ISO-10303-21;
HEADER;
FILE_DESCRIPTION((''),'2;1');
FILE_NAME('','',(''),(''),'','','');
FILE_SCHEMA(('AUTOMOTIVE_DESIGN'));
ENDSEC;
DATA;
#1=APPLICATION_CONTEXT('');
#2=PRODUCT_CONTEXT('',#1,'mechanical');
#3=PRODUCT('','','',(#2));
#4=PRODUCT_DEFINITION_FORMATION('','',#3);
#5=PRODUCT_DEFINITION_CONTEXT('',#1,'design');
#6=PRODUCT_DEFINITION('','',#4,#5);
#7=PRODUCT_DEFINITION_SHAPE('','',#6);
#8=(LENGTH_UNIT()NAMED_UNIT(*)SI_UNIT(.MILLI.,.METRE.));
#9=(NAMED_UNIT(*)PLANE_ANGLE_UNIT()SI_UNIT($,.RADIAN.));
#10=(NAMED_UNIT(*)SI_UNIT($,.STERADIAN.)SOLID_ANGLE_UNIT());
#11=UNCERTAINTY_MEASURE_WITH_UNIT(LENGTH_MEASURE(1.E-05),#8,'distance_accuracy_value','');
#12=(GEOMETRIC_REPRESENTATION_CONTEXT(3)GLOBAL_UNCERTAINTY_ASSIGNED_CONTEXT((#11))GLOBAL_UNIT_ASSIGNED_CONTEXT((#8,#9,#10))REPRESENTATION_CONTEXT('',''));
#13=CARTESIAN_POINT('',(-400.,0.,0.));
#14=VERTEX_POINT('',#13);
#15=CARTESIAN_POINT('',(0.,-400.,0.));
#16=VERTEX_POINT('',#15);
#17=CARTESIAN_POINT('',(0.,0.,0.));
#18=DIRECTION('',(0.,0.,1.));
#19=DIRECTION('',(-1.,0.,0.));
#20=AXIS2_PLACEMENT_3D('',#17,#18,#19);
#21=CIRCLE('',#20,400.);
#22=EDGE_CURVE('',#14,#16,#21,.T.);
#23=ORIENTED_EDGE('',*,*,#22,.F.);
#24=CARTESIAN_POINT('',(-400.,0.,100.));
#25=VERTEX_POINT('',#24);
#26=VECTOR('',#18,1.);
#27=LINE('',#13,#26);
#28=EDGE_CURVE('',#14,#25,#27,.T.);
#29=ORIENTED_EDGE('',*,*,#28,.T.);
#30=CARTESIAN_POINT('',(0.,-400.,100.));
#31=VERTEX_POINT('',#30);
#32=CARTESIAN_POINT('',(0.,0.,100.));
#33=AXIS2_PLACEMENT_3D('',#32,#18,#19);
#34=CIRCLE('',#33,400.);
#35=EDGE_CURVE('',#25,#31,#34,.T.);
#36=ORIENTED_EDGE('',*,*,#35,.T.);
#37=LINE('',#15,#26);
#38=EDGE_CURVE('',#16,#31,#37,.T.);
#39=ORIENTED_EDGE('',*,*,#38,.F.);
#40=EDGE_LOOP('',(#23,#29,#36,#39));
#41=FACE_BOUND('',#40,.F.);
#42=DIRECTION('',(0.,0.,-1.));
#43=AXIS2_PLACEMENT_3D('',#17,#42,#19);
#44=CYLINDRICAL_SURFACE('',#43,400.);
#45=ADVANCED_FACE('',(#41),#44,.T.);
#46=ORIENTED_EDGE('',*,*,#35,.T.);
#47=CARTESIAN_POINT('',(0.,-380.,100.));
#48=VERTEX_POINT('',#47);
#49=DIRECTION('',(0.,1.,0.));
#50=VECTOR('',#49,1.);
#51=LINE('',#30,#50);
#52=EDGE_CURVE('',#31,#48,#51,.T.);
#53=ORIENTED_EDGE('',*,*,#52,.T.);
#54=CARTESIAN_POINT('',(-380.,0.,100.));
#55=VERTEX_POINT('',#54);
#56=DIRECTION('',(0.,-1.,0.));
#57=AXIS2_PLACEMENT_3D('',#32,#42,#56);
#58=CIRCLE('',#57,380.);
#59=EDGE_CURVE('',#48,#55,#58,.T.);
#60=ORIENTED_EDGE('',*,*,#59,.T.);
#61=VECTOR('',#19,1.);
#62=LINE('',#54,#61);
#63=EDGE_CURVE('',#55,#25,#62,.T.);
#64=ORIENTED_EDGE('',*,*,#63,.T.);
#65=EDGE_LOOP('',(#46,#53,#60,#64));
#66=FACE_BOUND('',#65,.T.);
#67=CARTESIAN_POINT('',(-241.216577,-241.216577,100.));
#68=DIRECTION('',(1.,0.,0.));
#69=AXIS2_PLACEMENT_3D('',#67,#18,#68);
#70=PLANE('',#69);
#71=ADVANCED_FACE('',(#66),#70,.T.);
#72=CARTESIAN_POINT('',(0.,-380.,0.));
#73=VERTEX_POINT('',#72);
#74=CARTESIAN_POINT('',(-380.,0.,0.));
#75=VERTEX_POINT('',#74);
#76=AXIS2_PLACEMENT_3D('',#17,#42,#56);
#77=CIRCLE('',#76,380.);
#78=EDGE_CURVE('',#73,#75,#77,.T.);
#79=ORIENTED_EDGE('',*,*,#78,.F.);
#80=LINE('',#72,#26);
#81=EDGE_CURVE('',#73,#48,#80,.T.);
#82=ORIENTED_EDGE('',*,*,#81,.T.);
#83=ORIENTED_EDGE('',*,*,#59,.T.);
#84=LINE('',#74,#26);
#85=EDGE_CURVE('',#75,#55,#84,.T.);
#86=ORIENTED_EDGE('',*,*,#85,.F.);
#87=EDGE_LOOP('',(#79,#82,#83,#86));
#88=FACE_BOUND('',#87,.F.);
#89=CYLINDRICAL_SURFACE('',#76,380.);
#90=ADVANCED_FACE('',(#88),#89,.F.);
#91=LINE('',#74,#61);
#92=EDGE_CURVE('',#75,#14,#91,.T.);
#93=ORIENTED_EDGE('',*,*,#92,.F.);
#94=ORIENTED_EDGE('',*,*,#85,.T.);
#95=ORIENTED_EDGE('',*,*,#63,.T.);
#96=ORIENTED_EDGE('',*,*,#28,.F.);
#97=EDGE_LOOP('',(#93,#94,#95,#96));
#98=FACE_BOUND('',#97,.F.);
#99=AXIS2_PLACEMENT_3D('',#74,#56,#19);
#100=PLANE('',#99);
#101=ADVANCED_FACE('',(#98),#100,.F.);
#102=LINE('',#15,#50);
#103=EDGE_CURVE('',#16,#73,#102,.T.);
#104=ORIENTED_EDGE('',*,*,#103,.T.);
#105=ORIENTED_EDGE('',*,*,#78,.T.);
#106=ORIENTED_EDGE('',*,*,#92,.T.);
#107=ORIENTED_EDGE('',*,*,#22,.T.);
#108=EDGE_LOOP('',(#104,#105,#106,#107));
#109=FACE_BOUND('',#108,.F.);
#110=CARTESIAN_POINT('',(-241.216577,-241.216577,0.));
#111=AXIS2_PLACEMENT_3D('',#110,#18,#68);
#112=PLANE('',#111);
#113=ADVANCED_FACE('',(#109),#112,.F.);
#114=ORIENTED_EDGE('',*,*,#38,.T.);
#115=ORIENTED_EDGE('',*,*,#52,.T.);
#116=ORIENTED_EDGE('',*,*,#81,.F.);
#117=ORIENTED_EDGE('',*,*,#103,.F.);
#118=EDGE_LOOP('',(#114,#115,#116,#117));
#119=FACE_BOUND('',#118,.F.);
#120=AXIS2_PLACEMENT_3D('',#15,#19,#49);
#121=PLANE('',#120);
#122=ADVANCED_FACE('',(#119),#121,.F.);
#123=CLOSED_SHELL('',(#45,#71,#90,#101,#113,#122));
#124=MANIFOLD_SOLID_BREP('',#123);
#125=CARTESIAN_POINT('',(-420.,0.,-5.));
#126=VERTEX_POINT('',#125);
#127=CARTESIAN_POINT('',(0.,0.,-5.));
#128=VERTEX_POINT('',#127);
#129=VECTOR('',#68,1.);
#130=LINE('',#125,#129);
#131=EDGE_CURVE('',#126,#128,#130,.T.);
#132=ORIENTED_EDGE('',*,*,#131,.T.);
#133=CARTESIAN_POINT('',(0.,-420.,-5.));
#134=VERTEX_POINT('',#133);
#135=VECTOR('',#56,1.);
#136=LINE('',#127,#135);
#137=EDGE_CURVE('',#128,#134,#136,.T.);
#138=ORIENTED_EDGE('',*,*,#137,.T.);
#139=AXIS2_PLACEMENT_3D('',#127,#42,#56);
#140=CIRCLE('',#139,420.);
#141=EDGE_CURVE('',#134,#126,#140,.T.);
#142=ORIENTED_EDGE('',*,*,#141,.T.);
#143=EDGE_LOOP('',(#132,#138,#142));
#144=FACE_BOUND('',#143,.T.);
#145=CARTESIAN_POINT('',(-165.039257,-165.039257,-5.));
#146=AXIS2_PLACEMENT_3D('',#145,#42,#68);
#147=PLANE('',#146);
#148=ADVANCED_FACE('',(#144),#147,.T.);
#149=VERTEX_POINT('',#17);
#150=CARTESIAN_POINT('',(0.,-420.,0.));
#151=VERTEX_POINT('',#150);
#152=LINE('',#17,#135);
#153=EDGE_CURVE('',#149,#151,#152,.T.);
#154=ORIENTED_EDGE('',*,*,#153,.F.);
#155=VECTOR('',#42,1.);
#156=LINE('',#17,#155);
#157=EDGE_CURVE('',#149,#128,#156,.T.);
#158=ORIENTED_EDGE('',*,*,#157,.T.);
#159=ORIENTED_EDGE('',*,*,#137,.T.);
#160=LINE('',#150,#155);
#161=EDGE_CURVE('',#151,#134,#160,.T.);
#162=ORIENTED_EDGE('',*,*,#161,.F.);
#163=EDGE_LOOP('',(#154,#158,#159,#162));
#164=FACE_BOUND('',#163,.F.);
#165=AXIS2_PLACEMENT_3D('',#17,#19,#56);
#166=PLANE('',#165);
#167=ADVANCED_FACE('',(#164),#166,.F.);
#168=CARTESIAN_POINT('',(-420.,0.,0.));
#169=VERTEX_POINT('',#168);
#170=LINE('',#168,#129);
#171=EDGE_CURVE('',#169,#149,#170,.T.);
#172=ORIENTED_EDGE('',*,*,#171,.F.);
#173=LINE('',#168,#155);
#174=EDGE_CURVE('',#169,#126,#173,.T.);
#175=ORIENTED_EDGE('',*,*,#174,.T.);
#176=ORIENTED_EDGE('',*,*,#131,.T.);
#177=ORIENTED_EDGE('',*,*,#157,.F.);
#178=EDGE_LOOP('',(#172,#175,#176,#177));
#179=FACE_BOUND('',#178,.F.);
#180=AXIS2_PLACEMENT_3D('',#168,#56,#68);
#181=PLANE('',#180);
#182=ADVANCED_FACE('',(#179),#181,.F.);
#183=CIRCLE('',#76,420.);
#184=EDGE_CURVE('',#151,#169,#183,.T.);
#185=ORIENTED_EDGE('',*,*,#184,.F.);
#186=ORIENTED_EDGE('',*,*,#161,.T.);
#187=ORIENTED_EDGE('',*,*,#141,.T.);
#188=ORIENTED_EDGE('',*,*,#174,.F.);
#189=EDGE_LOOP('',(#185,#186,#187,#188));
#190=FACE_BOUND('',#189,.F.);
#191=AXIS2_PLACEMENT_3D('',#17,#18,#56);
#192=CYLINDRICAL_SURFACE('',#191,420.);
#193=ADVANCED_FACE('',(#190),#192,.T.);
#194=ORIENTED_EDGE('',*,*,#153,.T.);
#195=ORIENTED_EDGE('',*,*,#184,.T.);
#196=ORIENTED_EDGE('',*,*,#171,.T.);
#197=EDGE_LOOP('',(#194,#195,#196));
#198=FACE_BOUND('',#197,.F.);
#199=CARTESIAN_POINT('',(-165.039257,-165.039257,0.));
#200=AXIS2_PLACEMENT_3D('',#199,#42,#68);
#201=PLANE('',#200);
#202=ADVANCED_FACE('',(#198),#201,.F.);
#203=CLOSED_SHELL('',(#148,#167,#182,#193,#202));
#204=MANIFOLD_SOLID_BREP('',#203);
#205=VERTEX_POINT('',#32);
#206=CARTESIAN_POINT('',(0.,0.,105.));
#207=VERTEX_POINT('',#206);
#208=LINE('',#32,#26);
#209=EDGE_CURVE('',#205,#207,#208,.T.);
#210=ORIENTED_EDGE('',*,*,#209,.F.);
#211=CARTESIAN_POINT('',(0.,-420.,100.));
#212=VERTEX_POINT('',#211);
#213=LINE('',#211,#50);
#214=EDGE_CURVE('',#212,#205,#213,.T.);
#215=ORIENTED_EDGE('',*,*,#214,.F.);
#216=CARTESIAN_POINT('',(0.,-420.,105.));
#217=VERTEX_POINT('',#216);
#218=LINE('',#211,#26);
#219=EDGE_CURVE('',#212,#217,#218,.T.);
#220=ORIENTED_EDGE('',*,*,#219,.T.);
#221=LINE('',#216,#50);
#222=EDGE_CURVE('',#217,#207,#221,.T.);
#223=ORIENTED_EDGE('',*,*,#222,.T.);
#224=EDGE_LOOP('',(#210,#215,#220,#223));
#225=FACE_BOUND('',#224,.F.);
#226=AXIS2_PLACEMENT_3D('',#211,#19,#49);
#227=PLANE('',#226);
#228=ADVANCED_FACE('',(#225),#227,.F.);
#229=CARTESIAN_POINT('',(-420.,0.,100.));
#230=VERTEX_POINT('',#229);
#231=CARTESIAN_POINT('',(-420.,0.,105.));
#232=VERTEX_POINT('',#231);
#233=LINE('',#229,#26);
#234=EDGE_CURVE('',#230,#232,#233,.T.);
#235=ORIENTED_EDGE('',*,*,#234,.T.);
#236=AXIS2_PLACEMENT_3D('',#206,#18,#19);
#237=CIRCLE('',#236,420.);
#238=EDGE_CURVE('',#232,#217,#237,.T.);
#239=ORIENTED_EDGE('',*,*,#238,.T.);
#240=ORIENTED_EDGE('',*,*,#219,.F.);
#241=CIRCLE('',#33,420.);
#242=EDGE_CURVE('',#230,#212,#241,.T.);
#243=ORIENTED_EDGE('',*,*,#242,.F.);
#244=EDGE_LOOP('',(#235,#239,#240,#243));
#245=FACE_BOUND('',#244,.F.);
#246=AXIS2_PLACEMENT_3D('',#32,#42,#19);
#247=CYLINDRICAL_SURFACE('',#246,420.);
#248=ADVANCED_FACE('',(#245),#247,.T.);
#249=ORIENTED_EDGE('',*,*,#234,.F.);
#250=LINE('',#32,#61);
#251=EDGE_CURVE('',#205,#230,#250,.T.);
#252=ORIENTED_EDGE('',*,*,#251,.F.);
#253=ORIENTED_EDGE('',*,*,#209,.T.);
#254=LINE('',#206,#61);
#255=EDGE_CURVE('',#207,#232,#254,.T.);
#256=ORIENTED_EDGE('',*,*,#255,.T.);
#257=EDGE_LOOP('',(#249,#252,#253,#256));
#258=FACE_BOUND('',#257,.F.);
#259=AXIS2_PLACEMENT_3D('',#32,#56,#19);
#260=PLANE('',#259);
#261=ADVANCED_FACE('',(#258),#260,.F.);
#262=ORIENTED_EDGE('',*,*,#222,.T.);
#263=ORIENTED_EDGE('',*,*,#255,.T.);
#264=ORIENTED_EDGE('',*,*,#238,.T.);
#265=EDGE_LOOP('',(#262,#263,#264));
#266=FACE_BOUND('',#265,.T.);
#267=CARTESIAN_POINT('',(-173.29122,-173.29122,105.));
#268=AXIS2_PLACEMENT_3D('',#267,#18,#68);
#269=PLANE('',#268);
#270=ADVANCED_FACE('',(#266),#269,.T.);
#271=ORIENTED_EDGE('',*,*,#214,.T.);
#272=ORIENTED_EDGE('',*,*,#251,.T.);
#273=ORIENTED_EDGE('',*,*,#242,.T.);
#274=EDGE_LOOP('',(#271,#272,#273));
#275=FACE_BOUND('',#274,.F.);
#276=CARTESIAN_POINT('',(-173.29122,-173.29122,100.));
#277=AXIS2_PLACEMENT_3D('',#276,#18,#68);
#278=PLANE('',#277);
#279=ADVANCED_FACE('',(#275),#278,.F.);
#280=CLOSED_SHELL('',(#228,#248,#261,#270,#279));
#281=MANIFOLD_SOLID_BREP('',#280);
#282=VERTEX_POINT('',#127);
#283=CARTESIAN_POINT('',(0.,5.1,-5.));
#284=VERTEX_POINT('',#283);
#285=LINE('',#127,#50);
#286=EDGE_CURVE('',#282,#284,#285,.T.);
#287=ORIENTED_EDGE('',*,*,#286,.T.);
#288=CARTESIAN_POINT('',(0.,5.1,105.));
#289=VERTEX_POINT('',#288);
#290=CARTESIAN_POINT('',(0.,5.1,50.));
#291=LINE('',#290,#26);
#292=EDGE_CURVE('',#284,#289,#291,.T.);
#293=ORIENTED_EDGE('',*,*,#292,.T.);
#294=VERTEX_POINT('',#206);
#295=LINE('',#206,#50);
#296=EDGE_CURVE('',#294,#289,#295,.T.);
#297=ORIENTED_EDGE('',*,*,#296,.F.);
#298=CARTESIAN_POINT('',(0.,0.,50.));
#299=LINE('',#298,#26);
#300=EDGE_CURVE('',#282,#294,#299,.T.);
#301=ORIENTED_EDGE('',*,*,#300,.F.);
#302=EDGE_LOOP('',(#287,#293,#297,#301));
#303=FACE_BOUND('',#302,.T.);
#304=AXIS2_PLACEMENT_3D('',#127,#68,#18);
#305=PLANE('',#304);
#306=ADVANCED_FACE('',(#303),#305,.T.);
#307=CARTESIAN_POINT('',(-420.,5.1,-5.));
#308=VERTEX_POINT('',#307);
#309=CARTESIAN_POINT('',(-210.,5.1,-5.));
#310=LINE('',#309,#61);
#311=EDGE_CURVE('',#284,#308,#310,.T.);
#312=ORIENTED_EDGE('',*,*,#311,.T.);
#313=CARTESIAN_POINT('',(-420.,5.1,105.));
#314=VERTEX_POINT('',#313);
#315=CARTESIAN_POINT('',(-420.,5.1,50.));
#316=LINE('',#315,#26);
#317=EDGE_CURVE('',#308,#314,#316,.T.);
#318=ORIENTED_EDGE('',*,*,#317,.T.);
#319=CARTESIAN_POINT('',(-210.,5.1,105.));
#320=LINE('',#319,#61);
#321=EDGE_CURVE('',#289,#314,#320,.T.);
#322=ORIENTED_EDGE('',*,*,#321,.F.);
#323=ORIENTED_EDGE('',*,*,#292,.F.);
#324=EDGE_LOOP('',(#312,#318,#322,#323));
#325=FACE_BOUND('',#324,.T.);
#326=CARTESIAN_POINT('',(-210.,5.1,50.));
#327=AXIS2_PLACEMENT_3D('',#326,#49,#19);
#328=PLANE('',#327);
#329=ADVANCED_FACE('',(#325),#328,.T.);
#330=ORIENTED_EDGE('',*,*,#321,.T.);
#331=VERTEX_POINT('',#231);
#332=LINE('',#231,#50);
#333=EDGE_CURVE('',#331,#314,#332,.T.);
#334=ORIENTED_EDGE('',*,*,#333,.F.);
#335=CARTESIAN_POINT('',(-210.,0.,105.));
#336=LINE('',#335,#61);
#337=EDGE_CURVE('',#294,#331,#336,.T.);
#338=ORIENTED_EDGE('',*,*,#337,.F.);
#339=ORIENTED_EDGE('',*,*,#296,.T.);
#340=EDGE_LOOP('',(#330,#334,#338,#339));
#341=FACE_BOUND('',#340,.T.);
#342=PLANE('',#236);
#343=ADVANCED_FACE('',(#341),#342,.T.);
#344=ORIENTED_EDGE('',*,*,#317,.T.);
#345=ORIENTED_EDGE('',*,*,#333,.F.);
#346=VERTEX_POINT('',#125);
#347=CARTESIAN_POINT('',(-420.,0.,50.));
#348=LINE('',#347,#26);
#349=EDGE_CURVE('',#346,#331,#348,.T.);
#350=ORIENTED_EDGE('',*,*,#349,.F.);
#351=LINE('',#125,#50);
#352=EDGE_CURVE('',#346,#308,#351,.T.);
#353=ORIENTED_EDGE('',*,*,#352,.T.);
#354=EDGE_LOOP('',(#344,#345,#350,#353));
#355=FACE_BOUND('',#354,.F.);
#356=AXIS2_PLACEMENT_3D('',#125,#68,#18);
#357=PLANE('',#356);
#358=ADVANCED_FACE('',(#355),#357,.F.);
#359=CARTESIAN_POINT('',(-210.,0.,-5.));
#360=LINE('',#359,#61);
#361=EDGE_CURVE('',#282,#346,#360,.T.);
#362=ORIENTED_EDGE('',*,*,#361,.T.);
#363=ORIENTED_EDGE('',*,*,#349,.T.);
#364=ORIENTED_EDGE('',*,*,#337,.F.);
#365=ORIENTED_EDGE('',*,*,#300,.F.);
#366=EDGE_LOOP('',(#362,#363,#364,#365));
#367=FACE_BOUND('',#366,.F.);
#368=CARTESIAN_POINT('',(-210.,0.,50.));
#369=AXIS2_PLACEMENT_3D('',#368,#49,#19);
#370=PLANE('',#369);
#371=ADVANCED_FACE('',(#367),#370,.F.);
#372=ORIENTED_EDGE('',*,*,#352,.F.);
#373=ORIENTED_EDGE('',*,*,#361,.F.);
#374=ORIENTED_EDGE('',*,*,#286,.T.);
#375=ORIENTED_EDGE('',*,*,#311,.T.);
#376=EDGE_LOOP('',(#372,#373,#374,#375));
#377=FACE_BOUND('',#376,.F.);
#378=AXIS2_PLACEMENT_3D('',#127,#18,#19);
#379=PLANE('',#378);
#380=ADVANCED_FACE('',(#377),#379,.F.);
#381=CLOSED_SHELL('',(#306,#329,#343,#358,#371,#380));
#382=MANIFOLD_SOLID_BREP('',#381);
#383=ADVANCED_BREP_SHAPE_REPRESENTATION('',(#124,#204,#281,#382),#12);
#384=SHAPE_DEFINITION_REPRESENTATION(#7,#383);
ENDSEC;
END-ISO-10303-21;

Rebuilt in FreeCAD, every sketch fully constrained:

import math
import FreeCAD as App
import Part
import Sketcher

V = App.Vector


def add_polygon(sketch, points):
    """Adds a closed chain of lines whose ends are joined by coincident constraints."""
    first, n = sketch.GeometryCount, len(points)
    for a, b in zip(points, points[1:] + points[:1]):
        sketch.addGeometry(Part.LineSegment(App.Vector(*a, 0), App.Vector(*b, 0)), False)
    for i in range(n):
        sketch.addConstraint(Sketcher.Constraint("Coincident", first + i, 2, first + (i + 1) % n, 1))

doc = App.newDocument("Part")
body = doc.addObject("PartDesign::Body", "Body")

# Sketch on XY plane
sketch1 = body.newObject("Sketcher::SketchObject", "Sketch")
sketch1.AttachmentSupport = (doc.getObject("XY_Plane"), [""])
sketch1.MapMode = "FlatFace"
sketch1.addGeometry([
    Part.ArcOfCircle(Part.Circle(V(0, 0, 0), V(0, 0, 1), 380), math.radians(180), math.radians(270)),
    Part.LineSegment(V(-380, 0, 0), V(-400, 0, 0)),
    Part.ArcOfCircle(Part.Circle(V(0, 0, 0), V(0, 0, 1), 400), math.radians(180), math.radians(270)),
    Part.LineSegment(V(0, -400, 0), V(0, -380, 0)),
], False)
sketch1.addConstraint([
    Sketcher.Constraint("Coincident", 0, 1, 1, 1),
    Sketcher.Constraint("Coincident", 1, 2, 2, 1),
    Sketcher.Constraint("Coincident", 2, 2, 3, 1),
    Sketcher.Constraint("Coincident", 3, 2, 0, 2),
    Sketcher.Constraint("Horizontal", 1),
    Sketcher.Constraint("Vertical", 3),
    Sketcher.Constraint("Coincident", 0, 3, -1, 1),
    Sketcher.Constraint("Coincident", 2, 3, -1, 1),
    Sketcher.Constraint("PointOnObject", 1, 2, -1),
    Sketcher.Constraint("PointOnObject", 3, 2, -2),
    Sketcher.Constraint("Radius", 0, 380.0),
    Sketcher.Constraint("Radius", 2, 400.0),
])
pad1 = body.newObject("PartDesign::Pad", "Pad")
pad1.Profile = sketch1
pad1.Length = 100
body2 = doc.addObject("PartDesign::Body", "Body001")

# Sketch on XY plane
sketch2 = body2.newObject("Sketcher::SketchObject", "Sketch001")
sketch2.AttachmentSupport = (doc.getObject("XY_Plane001"), [""])
sketch2.MapMode = "FlatFace"
sketch2.addGeometry([
    Part.LineSegment(V(0, 0, 0), V(0, -420, 0)),
    Part.ArcOfCircle(Part.Circle(V(0, 0, 0), V(0, 0, 1), 420), math.radians(180), math.radians(270)),
    Part.LineSegment(V(-420, 0, 0), V(0, 0, 0)),
], False)
sketch2.addConstraint([
    Sketcher.Constraint("Coincident", 0, 2, 1, 2),
    Sketcher.Constraint("Coincident", 1, 1, 2, 1),
    Sketcher.Constraint("Coincident", 2, 2, 0, 1),
    Sketcher.Constraint("Vertical", 0),
    Sketcher.Constraint("Horizontal", 2),
    Sketcher.Constraint("Coincident", 1, 3, -1, 1),
    Sketcher.Constraint("Coincident", 2, 2, -1, 1),
    Sketcher.Constraint("Radius", 1, 420.0),
])
pad2 = body2.newObject("PartDesign::Pad", "Pad001")
pad2.Profile = sketch2
pad2.Length = 5
pad2.Reversed = True
body3 = doc.addObject("PartDesign::Body", "Body002")

# Sketch on XY plane
sketch3 = body3.newObject("Sketcher::SketchObject", "Sketch002")
sketch3.AttachmentSupport = (doc.getObject("XY_Plane002"), [""])
sketch3.MapMode = "FlatFace"
sketch3.AttachmentOffset = App.Placement(V(0, 0, 100), App.Rotation())
sketch3.addGeometry([
    Part.LineSegment(V(0, -420, 0), V(0, 0, 0)),
    Part.LineSegment(V(0, 0, 0), V(-420, 0, 0)),
    Part.ArcOfCircle(Part.Circle(V(0, 0, 0), V(0, 0, 1), 420), math.radians(180), math.radians(270)),
], False)
sketch3.addConstraint([
    Sketcher.Constraint("Coincident", 0, 2, 1, 1),
    Sketcher.Constraint("Coincident", 1, 2, 2, 1),
    Sketcher.Constraint("Coincident", 2, 2, 0, 1),
    Sketcher.Constraint("Vertical", 0),
    Sketcher.Constraint("Horizontal", 1),
    Sketcher.Constraint("Coincident", 2, 3, -1, 1),
    Sketcher.Constraint("Coincident", 0, 2, -1, 1),
    Sketcher.Constraint("Radius", 2, 420.0),
])
pad3 = body3.newObject("PartDesign::Pad", "Pad002")
pad3.Profile = sketch3
pad3.Length = 5
body4 = doc.addObject("PartDesign::Body", "Body003")

# Sketch on XZ plane
sketch4 = body4.newObject("Sketcher::SketchObject", "Sketch003")
sketch4.AttachmentSupport = (doc.getObject("XZ_Plane003"), [""])
sketch4.MapMode = "FlatFace"
add_polygon(sketch4, [(0, 105), (0, -5), (-420, -5), (-420, 105)])  # lines 0-3
sketch4.addConstraint([
    Sketcher.Constraint("Vertical", 0),
    Sketcher.Constraint("Horizontal", 1),
    Sketcher.Constraint("Vertical", 2),
    Sketcher.Constraint("Horizontal", 3),
    Sketcher.Constraint("PointOnObject", 0, 2, -2),
    Sketcher.Constraint("DistanceX", 1, 2, 1, 1, 420.0),
    Sketcher.Constraint("DistanceY", 0, 2, 0, 1, 110.0),
    Sketcher.Constraint("DistanceY", 0, 2, -1, 1, 5.0),
])
pad4 = body4.newObject("PartDesign::Pad", "Pad003")
pad4.Profile = sketch4
pad4.Length = 5.1
pad4.Reversed = True

doc.recompute()
